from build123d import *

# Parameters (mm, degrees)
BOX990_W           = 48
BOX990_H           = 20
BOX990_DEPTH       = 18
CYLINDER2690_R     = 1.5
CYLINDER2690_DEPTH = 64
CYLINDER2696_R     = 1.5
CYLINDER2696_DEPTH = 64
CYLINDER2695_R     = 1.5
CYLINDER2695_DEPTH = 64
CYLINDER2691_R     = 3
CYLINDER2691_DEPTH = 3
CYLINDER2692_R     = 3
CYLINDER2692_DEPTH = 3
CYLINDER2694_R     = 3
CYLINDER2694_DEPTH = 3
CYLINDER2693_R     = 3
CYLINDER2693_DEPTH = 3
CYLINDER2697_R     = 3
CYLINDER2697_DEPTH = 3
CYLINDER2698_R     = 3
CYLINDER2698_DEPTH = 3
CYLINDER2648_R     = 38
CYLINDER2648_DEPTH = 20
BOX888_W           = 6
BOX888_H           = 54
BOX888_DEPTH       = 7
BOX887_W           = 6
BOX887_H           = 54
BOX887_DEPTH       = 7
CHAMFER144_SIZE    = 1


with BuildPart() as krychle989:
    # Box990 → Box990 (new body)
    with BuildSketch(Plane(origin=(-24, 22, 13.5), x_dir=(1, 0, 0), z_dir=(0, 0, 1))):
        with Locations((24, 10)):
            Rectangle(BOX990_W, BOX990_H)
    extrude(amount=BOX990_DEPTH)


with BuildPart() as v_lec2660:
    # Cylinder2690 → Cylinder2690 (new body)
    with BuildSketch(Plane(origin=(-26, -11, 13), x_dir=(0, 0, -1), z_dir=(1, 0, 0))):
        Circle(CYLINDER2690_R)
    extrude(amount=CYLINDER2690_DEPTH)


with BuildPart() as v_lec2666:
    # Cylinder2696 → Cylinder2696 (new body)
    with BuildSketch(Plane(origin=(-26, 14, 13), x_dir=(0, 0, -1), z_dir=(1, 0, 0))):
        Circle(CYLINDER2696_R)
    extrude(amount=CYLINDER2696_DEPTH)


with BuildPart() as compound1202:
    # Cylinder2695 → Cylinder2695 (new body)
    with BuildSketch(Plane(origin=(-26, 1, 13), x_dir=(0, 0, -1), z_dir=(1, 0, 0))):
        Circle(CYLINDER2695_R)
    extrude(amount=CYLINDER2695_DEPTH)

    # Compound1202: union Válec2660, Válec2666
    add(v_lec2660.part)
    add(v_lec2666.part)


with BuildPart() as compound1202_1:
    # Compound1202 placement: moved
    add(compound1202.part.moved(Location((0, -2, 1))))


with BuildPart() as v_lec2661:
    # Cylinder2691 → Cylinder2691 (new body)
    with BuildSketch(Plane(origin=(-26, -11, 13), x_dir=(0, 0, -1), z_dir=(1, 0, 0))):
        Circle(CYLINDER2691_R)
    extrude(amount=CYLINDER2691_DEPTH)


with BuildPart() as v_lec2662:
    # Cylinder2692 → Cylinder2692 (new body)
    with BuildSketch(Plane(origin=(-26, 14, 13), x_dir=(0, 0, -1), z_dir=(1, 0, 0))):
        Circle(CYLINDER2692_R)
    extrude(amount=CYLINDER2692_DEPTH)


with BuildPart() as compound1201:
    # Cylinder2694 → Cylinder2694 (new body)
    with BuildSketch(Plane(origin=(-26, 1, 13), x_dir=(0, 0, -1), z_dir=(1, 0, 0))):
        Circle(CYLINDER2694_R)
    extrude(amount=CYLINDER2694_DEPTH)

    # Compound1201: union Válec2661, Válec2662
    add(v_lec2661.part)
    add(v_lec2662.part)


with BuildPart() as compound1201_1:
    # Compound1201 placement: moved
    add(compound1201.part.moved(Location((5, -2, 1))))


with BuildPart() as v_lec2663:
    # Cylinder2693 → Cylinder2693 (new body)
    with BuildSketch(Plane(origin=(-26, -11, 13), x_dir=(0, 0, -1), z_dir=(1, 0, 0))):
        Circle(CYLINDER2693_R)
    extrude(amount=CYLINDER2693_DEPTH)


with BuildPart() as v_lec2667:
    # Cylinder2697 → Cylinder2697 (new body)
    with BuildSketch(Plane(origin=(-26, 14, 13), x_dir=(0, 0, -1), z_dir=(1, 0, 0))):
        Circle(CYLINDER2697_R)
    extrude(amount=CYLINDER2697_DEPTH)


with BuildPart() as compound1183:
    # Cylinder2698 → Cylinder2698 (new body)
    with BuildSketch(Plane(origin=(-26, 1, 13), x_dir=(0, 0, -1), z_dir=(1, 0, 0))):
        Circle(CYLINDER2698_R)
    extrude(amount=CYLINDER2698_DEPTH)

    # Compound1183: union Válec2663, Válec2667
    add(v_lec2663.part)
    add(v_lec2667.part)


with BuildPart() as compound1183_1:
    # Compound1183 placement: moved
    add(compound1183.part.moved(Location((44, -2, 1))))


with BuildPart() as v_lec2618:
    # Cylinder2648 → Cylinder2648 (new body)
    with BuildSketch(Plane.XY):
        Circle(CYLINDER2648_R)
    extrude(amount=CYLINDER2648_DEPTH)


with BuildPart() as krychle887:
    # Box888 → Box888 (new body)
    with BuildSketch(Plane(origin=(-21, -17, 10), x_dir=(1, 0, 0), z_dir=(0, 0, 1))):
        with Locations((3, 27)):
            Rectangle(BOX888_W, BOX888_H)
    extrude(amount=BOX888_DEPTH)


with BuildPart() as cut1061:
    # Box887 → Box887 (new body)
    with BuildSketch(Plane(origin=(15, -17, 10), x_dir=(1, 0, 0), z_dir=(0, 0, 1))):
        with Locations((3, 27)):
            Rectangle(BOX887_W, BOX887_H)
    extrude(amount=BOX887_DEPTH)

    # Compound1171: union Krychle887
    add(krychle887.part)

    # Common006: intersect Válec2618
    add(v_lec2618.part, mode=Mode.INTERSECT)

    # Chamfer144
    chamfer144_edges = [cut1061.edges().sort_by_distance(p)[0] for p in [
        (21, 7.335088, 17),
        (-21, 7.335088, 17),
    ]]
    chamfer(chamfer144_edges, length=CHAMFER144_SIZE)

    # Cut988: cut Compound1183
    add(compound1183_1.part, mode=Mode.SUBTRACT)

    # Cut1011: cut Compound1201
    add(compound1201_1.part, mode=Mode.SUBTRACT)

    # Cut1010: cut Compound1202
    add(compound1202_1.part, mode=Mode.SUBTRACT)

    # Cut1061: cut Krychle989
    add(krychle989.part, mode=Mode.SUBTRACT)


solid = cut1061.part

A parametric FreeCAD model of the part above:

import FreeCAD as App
import Part
import Sketcher


def edges_at(feature, points):
    """Names of the edges that pass closest to the given points."""
    edges = feature.Shape.Edges
    near = lambda p: min(range(len(edges)), key=lambda i: edges[i].distToShape(Part.Vertex(*p))[0])
    return sorted({f"Edge{near(p) + 1}" for p in points})


def add_polygon(sketch, points):
    """Adds a closed chain of lines whose ends are joined by coincident constraints."""
    first, n = sketch.GeometryCount, len(points)
    for a, b in zip(points, points[1:] + points[:1]):
        sketch.addGeometry(Part.LineSegment(App.Vector(*a, 0), App.Vector(*b, 0)), False)
    for i in range(n):
        sketch.addConstraint(Sketcher.Constraint("Coincident", first + i, 2, first + (i + 1) % n, 1))

doc = App.newDocument("Part")
body = doc.addObject("PartDesign::Body", "Body")

sketch1 = doc.addObject("Sketcher::SketchObject", "Sketch")
body.addObject(sketch1)
sketch1.AttachmentSupport = (doc.XY_Plane, [""])
sketch1.MapMode = "FlatFace"
sketch1.AttachmentOffset = App.Placement(App.Vector(0, 0, 13.5), App.Rotation())
add_polygon(sketch1, [(-24, 42), (-24, 22), (24, 22), (24, 42)])
sketch1.addConstraint(Sketcher.Constraint("Vertical", 0))
sketch1.addConstraint(Sketcher.Constraint("Horizontal", 1))
sketch1.addConstraint(Sketcher.Constraint("Vertical", 2))
sketch1.addConstraint(Sketcher.Constraint("Horizontal", 3))
sketch1.addConstraint(Sketcher.Constraint("DistanceX", 1, 1, 1, 2, 48.0))
sketch1.addConstraint(Sketcher.Constraint("DistanceY", 0, 2, 0, 1, 20.0))
sketch1.addConstraint(Sketcher.Constraint("DistanceX", 0, 2, -1, 1, 24.0))
sketch1.addConstraint(Sketcher.Constraint("DistanceY", -1, 1, 0, 2, 22.0))
pad1 = doc.addObject("PartDesign::Pad", "Pad")
body.addObject(pad1)
pad1.Profile = sketch1
pad1.Length = 18
body2 = doc.addObject("PartDesign::Body", "Body001")

sketch2 = doc.addObject("Sketcher::SketchObject", "Sketch001")
body2.addObject(sketch2)
sketch2.AttachmentSupport = (doc.getObject("YZ_Plane001"), [""])
sketch2.MapMode = "FlatFace"
sketch2.AttachmentOffset = App.Placement(App.Vector(0, 0, -26), App.Rotation())
sketch2.addGeometry(Part.Circle(App.Vector(-11, 13, 0), App.Vector(0, 0, 1), 1.5), False)
sketch2.addConstraint(Sketcher.Constraint("Diameter", 0, 3.0))
sketch2.addConstraint(Sketcher.Constraint("DistanceX", 0, 3, -1, 1, 11.0))
sketch2.addConstraint(Sketcher.Constraint("DistanceY", -1, 1, 0, 3, 13.0))
pad2 = doc.addObject("PartDesign::Pad", "Pad001")
body2.addObject(pad2)
pad2.Profile = sketch2
pad2.Length = 64
body3 = doc.addObject("PartDesign::Body", "Body002")

sketch3 = doc.addObject("Sketcher::SketchObject", "Sketch002")
body3.addObject(sketch3)
sketch3.AttachmentSupport = (doc.getObject("YZ_Plane002"), [""])
sketch3.MapMode = "FlatFace"
sketch3.AttachmentOffset = App.Placement(App.Vector(0, 0, -26), App.Rotation())
sketch3.addGeometry(Part.Circle(App.Vector(14, 13, 0), App.Vector(0, 0, 1), 1.5), False)
sketch3.addConstraint(Sketcher.Constraint("Diameter", 0, 3.0))
sketch3.addConstraint(Sketcher.Constraint("DistanceX", -1, 1, 0, 3, 14.0))
sketch3.addConstraint(Sketcher.Constraint("DistanceY", -1, 1, 0, 3, 13.0))
pad3 = doc.addObject("PartDesign::Pad", "Pad002")
body3.addObject(pad3)
pad3.Profile = sketch3
pad3.Length = 64
body4 = doc.addObject("PartDesign::Body", "Body003")
body4.AllowCompound = True

sketch4 = doc.addObject("Sketcher::SketchObject", "Sketch003")
body4.addObject(sketch4)
sketch4.AttachmentSupport = (doc.getObject("YZ_Plane003"), [""])
sketch4.MapMode = "FlatFace"
sketch4.AttachmentOffset = App.Placement(App.Vector(0, 0, -26), App.Rotation())
sketch4.addGeometry(Part.Circle(App.Vector(1, 13, 0), App.Vector(0, 0, 1), 1.5), False)
sketch4.addConstraint(Sketcher.Constraint("Diameter", 0, 3.0))
sketch4.addConstraint(Sketcher.Constraint("DistanceX", -1, 1, 0, 3, 1.0))
sketch4.addConstraint(Sketcher.Constraint("DistanceY", -1, 1, 0, 3, 13.0))
pad4 = doc.addObject("PartDesign::Pad", "Pad003")
body4.addObject(pad4)
pad4.Profile = sketch4
pad4.Length = 64
doc.recompute()

boolean = doc.addObject("PartDesign::Boolean", "Boolean")
body4.addObject(boolean)
boolean.Type = "Fuse"
boolean.addObjects([body2])
doc.recompute()

boolean2 = doc.addObject("PartDesign::Boolean", "Boolean001")
body4.addObject(boolean2)
boolean2.Type = "Fuse"
boolean2.addObjects([body3])
body5 = doc.addObject("PartDesign::Body", "Body004")
body5.AllowCompound = True
doc.recompute()

body4.Placement = App.Placement(App.Vector(0, -2, 1), App.Rotation(App.Vector(0, 0, 1), 0))
boolean3 = doc.addObject("PartDesign::Boolean", "Boolean002")
body5.addObject(boolean3)
boolean3.Type = "Fuse"
boolean3.addObjects([body4])
body6 = doc.addObject("PartDesign::Body", "Body005")

sketch5 = doc.addObject("Sketcher::SketchObject", "Sketch004")
body6.addObject(sketch5)
sketch5.AttachmentSupport = (doc.getObject("YZ_Plane005"), [""])
sketch5.MapMode = "FlatFace"
sketch5.AttachmentOffset = App.Placement(App.Vector(0, 0, -26), App.Rotation())
sketch5.addGeometry(Part.Circle(App.Vector(-11, 13, 0), App.Vector(0, 0, 1), 3), False)
sketch5.addConstraint(Sketcher.Constraint("Diameter", 0, 6.0))
sketch5.addConstraint(Sketcher.Constraint("DistanceX", 0, 3, -1, 1, 11.0))
sketch5.addConstraint(Sketcher.Constraint("DistanceY", -1, 1, 0, 3, 13.0))
pad5 = doc.addObject("PartDesign::Pad", "Pad004")
body6.addObject(pad5)
pad5.Profile = sketch5
pad5.Length = 3
body7 = doc.addObject("PartDesign::Body", "Body006")

sketch6 = doc.addObject("Sketcher::SketchObject", "Sketch005")
body7.addObject(sketch6)
sketch6.AttachmentSupport = (doc.getObject("YZ_Plane006"), [""])
sketch6.MapMode = "FlatFace"
sketch6.AttachmentOffset = App.Placement(App.Vector(0, 0, -26), App.Rotation())
sketch6.addGeometry(Part.Circle(App.Vector(14, 13, 0), App.Vector(0, 0, 1), 3), False)
sketch6.addConstraint(Sketcher.Constraint("Diameter", 0, 6.0))
sketch6.addConstraint(Sketcher.Constraint("DistanceX", -1, 1, 0, 3, 14.0))
sketch6.addConstraint(Sketcher.Constraint("DistanceY", -1, 1, 0, 3, 13.0))
pad6 = doc.addObject("PartDesign::Pad", "Pad005")
body7.addObject(pad6)
pad6.Profile = sketch6
pad6.Length = 3
body8 = doc.addObject("PartDesign::Body", "Body007")
body8.AllowCompound = True

sketch7 = doc.addObject("Sketcher::SketchObject", "Sketch006")
body8.addObject(sketch7)
sketch7.AttachmentSupport = (doc.getObject("YZ_Plane007"), [""])
sketch7.MapMode = "FlatFace"
sketch7.AttachmentOffset = App.Placement(App.Vector(0, 0, -26), App.Rotation())
sketch7.addGeometry(Part.Circle(App.Vector(1, 13, 0), App.Vector(0, 0, 1), 3), False)
sketch7.addConstraint(Sketcher.Constraint("Diameter", 0, 6.0))
sketch7.addConstraint(Sketcher.Constraint("DistanceX", -1, 1, 0, 3, 1.0))
sketch7.addConstraint(Sketcher.Constraint("DistanceY", -1, 1, 0, 3, 13.0))
pad7 = doc.addObject("PartDesign::Pad", "Pad006")
body8.addObject(pad7)
pad7.Profile = sketch7
pad7.Length = 3
doc.recompute()

boolean4 = doc.addObject("PartDesign::Boolean", "Boolean003")
body8.addObject(boolean4)
boolean4.Type = "Fuse"
boolean4.addObjects([body6])
doc.recompute()

boolean5 = doc.addObject("PartDesign::Boolean", "Boolean004")
body8.addObject(boolean5)
boolean5.Type = "Fuse"
boolean5.addObjects([body7])
body9 = doc.addObject("PartDesign::Body", "Body008")
body9.AllowCompound = True
doc.recompute()

body8.Placement = App.Placement(App.Vector(5, -2, 1), App.Rotation(App.Vector(0, 0, 1), 0))
boolean6 = doc.addObject("PartDesign::Boolean", "Boolean005")
body9.addObject(boolean6)
boolean6.Type = "Fuse"
boolean6.addObjects([body8])
body10 = doc.addObject("PartDesign::Body", "Body009")

sketch8 = doc.addObject("Sketcher::SketchObject", "Sketch007")
body10.addObject(sketch8)
sketch8.AttachmentSupport = (doc.getObject("YZ_Plane009"), [""])
sketch8.MapMode = "FlatFace"
sketch8.AttachmentOffset = App.Placement(App.Vector(0, 0, -26), App.Rotation())
sketch8.addGeometry(Part.Circle(App.Vector(-11, 13, 0), App.Vector(0, 0, 1), 3), False)
sketch8.addConstraint(Sketcher.Constraint("Diameter", 0, 6.0))
sketch8.addConstraint(Sketcher.Constraint("DistanceX", 0, 3, -1, 1, 11.0))
sketch8.addConstraint(Sketcher.Constraint("DistanceY", -1, 1, 0, 3, 13.0))
pad8 = doc.addObject("PartDesign::Pad", "Pad007")
body10.addObject(pad8)
pad8.Profile = sketch8
pad8.Length = 3
body11 = doc.addObject("PartDesign::Body", "Body010")

sketch9 = doc.addObject("Sketcher::SketchObject", "Sketch008")
body11.addObject(sketch9)
sketch9.AttachmentSupport = (doc.getObject("YZ_Plane010"), [""])
sketch9.MapMode = "FlatFace"
sketch9.AttachmentOffset = App.Placement(App.Vector(0, 0, -26), App.Rotation())
sketch9.addGeometry(Part.Circle(App.Vector(14, 13, 0), App.Vector(0, 0, 1), 3), False)
sketch9.addConstraint(Sketcher.Constraint("Diameter", 0, 6.0))
sketch9.addConstraint(Sketcher.Constraint("DistanceX", -1, 1, 0, 3, 14.0))
sketch9.addConstraint(Sketcher.Constraint("DistanceY", -1, 1, 0, 3, 13.0))
pad9 = doc.addObject("PartDesign::Pad", "Pad008")
body11.addObject(pad9)
pad9.Profile = sketch9
pad9.Length = 3
body12 = doc.addObject("PartDesign::Body", "Body011")
body12.AllowCompound = True

sketch10 = doc.addObject("Sketcher::SketchObject", "Sketch009")
body12.addObject(sketch10)
sketch10.AttachmentSupport = (doc.getObject("YZ_Plane011"), [""])
sketch10.MapMode = "FlatFace"
sketch10.AttachmentOffset = App.Placement(App.Vector(0, 0, -26), App.Rotation())
sketch10.addGeometry(Part.Circle(App.Vector(1, 13, 0), App.Vector(0, 0, 1), 3), False)
sketch10.addConstraint(Sketcher.Constraint("Diameter", 0, 6.0))
sketch10.addConstraint(Sketcher.Constraint("DistanceX", -1, 1, 0, 3, 1.0))
sketch10.addConstraint(Sketcher.Constraint("DistanceY", -1, 1, 0, 3, 13.0))
pad10 = doc.addObject("PartDesign::Pad", "Pad009")
body12.addObject(pad10)
pad10.Profile = sketch10
pad10.Length = 3
doc.recompute()

boolean7 = doc.addObject("PartDesign::Boolean", "Boolean006")
body12.addObject(boolean7)
boolean7.Type = "Fuse"
boolean7.addObjects([body10])
doc.recompute()

boolean8 = doc.addObject("PartDesign::Boolean", "Boolean007")
body12.addObject(boolean8)
boolean8.Type = "Fuse"
boolean8.addObjects([body11])
body13 = doc.addObject("PartDesign::Body", "Body012")
body13.AllowCompound = True
doc.recompute()

body12.Placement = App.Placement(App.Vector(44, -2, 1), App.Rotation(App.Vector(0, 0, 1), 0))
boolean9 = doc.addObject("PartDesign::Boolean", "Boolean008")
body13.addObject(boolean9)
boolean9.Type = "Fuse"
boolean9.addObjects([body12])
body14 = doc.addObject("PartDesign::Body", "Body013")

sketch11 = doc.addObject("Sketcher::SketchObject", "Sketch010")
body14.addObject(sketch11)
sketch11.AttachmentSupport = (doc.getObject("XY_Plane013"), [""])
sketch11.MapMode = "FlatFace"
sketch11.addGeometry(Part.Circle(App.Vector(0, 0, 0), App.Vector(0, 0, 1), 38), False)
sketch11.addConstraint(Sketcher.Constraint("Coincident", 0, 3, -1, 1))
sketch11.addConstraint(Sketcher.Constraint("Diameter", 0, 76.0))
pad11 = doc.addObject("PartDesign::Pad", "Pad010")
body14.addObject(pad11)
pad11.Profile = sketch11
pad11.Length = 20
body15 = doc.addObject("PartDesign::Body", "Body014")

sketch12 = doc.addObject("Sketcher::SketchObject", "Sketch011")
body15.addObject(sketch12)
sketch12.AttachmentSupport = (doc.getObject("XY_Plane014"), [""])
sketch12.MapMode = "FlatFace"
sketch12.AttachmentOffset = App.Placement(App.Vector(0, 0, 10), App.Rotation())
add_polygon(sketch12, [(-21, 37), (-21, -17), (-15, -17), (-15, 37)])
sketch12.addConstraint(Sketcher.Constraint("Vertical", 0))
sketch12.addConstraint(Sketcher.Constraint("Horizontal", 1))
sketch12.addConstraint(Sketcher.Constraint("Vertical", 2))
sketch12.addConstraint(Sketcher.Constraint("Horizontal", 3))
sketch12.addConstraint(Sketcher.Constraint("DistanceX", 1, 1, 1, 2, 6.0))
sketch12.addConstraint(Sketcher.Constraint("DistanceY", 0, 2, 0, 1, 54.0))
sketch12.addConstraint(Sketcher.Constraint("DistanceX", 0, 2, -1, 1, 21.0))
sketch12.addConstraint(Sketcher.Constraint("DistanceY", 0, 2, -1, 1, 17.0))
pad12 = doc.addObject("PartDesign::Pad", "Pad011")
body15.addObject(pad12)
pad12.Profile = sketch12
pad12.Length = 7
body16 = doc.addObject("PartDesign::Body", "Body015")
body16.AllowCompound = True

sketch13 = doc.addObject("Sketcher::SketchObject", "Sketch012")
body16.addObject(sketch13)
sketch13.AttachmentSupport = (doc.getObject("XY_Plane015"), [""])
sketch13.MapMode = "FlatFace"
sketch13.AttachmentOffset = App.Placement(App.Vector(0, 0, 10), App.Rotation())
add_polygon(sketch13, [(15, 37), (15, -17), (21, -17), (21, 37)])
sketch13.addConstraint(Sketcher.Constraint("Vertical", 0))
sketch13.addConstraint(Sketcher.Constraint("Horizontal", 1))
sketch13.addConstraint(Sketcher.Constraint("Vertical", 2))
sketch13.addConstraint(Sketcher.Constraint("Horizontal", 3))
sketch13.addConstraint(Sketcher.Constraint("DistanceX", 1, 1, 1, 2, 6.0))
sketch13.addConstraint(Sketcher.Constraint("DistanceY", 0, 2, 0, 1, 54.0))
sketch13.addConstraint(Sketcher.Constraint("DistanceX", -1, 1, 0, 2, 15.0))
sketch13.addConstraint(Sketcher.Constraint("DistanceY", 0, 2, -1, 1, 17.0))
pad13 = doc.addObject("PartDesign::Pad", "Pad012")
body16.addObject(pad13)
pad13.Profile = sketch13
pad13.Length = 7
doc.recompute()

boolean10 = doc.addObject("PartDesign::Boolean", "Boolean009")
body16.addObject(boolean10)
boolean10.Type = "Fuse"
boolean10.addObjects([body15])
doc.recompute()

boolean11 = doc.addObject("PartDesign::Boolean", "Boolean010")
body16.addObject(boolean11)
boolean11.Type = "Common"
boolean11.addObjects([body14])
doc.recompute()

chamfer = doc.addObject("PartDesign::Chamfer", "Chamfer")
body16.addObject(chamfer)
chamfer.Base = (boolean11, edges_at(boolean11, [(21, 7.335, 17), (-21, 7.335, 17)]))
chamfer.Size = 1
doc.recompute()

boolean12 = doc.addObject("PartDesign::Boolean", "Boolean011")
body16.addObject(boolean12)
boolean12.Type = "Cut"
boolean12.addObjects([body13])
doc.recompute()

boolean13 = doc.addObject("PartDesign::Boolean", "Boolean012")
body16.addObject(boolean13)
boolean13.Type = "Cut"
boolean13.addObjects([body9])
doc.recompute()

boolean14 = doc.addObject("PartDesign::Boolean", "Boolean013")
body16.addObject(boolean14)
boolean14.Type = "Cut"
boolean14.addObjects([body5])
doc.recompute()

boolean15 = doc.addObject("PartDesign::Boolean", "Boolean014")
body16.addObject(boolean15)
boolean15.Type = "Cut"
boolean15.addObjects([body])

doc.recompute()
